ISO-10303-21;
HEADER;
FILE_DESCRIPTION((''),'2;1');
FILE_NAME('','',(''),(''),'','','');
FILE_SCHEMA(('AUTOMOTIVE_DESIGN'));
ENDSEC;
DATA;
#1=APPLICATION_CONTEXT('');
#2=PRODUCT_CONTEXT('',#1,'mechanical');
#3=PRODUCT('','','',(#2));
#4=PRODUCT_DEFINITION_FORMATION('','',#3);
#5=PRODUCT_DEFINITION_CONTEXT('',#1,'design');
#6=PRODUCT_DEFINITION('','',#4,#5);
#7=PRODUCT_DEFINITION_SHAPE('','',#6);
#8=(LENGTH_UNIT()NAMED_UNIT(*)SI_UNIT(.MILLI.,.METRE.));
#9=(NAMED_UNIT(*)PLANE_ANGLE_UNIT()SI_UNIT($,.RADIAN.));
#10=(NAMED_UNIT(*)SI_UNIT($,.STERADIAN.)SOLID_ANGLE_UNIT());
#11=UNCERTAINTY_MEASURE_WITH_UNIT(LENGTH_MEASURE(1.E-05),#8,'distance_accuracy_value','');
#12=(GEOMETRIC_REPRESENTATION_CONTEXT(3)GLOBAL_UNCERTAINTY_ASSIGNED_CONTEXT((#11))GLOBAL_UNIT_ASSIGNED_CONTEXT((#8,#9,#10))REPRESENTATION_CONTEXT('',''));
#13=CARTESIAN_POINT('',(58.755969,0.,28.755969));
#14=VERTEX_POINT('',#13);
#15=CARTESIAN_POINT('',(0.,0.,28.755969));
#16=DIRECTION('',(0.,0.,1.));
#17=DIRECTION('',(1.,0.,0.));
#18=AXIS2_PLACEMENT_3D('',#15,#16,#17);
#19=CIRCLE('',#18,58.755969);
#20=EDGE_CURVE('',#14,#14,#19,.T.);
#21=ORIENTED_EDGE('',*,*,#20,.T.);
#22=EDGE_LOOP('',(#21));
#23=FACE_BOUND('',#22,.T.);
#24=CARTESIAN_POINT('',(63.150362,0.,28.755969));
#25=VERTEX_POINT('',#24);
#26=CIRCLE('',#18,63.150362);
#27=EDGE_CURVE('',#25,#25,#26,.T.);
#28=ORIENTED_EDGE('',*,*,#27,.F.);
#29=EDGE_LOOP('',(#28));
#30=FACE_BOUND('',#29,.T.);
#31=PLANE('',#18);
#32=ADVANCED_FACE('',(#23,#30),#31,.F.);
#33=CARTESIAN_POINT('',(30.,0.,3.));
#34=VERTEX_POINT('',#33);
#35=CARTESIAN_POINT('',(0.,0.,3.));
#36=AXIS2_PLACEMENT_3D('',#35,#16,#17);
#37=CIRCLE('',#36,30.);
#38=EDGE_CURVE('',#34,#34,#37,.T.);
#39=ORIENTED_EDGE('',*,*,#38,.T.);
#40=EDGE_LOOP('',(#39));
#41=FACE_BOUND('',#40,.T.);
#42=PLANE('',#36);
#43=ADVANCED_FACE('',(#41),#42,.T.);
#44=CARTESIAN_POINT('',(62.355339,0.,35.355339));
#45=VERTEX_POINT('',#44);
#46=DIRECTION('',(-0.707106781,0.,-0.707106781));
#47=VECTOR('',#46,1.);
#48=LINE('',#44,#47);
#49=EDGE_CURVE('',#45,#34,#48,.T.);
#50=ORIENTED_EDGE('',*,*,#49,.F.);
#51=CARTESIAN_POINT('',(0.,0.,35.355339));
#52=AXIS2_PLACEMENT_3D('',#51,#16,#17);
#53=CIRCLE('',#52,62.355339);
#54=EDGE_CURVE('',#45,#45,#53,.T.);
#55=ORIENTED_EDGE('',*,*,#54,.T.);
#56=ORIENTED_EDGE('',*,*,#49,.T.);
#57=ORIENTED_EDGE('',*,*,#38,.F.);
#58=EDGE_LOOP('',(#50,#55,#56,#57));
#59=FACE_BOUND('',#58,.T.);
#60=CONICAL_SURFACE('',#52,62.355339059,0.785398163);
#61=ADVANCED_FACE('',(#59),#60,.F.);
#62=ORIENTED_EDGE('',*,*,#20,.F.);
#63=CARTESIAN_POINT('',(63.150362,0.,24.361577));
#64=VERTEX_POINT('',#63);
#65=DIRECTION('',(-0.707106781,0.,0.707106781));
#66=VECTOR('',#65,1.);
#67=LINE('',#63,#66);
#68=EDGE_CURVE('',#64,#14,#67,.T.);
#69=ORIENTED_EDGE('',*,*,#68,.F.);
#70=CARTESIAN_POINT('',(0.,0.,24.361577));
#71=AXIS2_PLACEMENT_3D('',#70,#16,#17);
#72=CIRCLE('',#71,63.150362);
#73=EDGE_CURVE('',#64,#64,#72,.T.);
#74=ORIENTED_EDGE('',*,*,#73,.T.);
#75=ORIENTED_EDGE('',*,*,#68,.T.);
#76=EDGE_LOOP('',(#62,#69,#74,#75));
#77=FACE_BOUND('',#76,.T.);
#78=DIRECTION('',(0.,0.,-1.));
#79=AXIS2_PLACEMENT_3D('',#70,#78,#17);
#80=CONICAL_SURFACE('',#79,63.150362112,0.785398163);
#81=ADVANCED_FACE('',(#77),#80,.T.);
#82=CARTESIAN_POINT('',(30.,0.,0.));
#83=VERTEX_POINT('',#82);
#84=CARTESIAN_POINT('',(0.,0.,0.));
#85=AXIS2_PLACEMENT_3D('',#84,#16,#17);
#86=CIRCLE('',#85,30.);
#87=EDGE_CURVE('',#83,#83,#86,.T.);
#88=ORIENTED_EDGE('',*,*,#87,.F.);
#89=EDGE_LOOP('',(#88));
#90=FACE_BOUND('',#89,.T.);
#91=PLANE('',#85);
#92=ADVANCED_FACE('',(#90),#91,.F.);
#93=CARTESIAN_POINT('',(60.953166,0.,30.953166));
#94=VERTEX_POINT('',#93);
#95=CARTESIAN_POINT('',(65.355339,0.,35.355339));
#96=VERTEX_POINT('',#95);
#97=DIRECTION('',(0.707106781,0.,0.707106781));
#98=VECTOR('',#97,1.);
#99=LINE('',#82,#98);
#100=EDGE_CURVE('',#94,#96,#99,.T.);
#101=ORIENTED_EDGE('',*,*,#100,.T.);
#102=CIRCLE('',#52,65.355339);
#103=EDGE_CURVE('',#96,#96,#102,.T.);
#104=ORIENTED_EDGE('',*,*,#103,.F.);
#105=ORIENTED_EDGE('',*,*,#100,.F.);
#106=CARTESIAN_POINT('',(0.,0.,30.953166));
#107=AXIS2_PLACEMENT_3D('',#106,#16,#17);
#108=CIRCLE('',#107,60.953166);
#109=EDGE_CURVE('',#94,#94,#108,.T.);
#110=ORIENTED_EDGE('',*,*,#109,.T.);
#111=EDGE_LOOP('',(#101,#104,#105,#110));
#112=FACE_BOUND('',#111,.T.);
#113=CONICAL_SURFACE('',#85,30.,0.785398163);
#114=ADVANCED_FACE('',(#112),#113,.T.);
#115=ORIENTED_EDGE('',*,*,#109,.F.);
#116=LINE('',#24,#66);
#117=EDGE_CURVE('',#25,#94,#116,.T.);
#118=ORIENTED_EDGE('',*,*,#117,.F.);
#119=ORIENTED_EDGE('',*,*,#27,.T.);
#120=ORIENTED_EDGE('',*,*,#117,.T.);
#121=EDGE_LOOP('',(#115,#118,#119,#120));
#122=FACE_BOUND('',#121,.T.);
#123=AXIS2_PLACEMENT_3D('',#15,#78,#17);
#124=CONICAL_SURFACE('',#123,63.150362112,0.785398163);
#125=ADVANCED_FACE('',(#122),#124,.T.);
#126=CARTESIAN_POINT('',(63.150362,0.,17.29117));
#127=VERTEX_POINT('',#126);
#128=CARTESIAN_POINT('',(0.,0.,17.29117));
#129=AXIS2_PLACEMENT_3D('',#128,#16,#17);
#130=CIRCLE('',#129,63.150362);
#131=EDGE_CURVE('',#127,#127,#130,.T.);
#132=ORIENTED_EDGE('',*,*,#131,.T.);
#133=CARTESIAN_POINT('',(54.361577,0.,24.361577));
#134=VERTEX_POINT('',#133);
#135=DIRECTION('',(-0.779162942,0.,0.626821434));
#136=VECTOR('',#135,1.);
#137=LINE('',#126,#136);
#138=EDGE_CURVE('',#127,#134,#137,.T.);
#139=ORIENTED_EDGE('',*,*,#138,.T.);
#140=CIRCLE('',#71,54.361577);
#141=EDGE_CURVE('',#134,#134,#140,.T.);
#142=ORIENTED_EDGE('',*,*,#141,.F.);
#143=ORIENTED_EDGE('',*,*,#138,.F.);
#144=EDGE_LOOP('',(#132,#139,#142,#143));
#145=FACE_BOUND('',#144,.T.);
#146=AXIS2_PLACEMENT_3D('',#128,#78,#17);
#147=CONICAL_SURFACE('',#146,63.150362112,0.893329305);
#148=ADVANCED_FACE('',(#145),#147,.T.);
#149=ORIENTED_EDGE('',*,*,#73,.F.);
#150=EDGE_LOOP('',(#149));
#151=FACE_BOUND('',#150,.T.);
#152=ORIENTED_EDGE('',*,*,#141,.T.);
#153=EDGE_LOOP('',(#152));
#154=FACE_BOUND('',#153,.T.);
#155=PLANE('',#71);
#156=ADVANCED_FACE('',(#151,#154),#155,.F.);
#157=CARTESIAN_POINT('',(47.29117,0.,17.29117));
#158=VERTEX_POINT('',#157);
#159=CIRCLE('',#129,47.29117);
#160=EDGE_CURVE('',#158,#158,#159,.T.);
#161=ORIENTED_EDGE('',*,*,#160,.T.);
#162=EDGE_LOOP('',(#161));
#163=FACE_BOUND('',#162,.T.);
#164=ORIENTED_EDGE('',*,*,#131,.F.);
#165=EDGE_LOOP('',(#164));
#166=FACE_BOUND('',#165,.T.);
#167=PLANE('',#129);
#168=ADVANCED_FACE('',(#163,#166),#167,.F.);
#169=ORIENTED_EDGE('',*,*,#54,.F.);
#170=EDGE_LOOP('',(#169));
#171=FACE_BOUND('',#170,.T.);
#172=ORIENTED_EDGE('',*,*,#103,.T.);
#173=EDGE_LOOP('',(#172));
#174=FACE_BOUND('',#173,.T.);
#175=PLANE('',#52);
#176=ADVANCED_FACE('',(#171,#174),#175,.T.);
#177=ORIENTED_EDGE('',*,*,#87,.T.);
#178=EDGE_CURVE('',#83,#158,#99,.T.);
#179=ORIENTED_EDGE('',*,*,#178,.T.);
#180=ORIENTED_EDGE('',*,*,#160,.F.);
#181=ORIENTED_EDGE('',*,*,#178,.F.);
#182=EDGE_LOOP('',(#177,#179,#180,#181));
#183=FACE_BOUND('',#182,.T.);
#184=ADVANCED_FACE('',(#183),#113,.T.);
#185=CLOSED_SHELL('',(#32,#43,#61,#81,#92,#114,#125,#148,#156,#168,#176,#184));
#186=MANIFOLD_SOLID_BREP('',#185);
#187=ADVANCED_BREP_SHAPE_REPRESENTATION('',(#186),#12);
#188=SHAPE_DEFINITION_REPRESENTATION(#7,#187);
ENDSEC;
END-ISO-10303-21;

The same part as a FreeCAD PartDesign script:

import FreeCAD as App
import Part
import Sketcher
Q = App.Units.Quantity


def add_polygon(sketch, points):
    """Adds a closed chain of lines whose ends are joined by coincident constraints."""
    first, n = sketch.GeometryCount, len(points)
    for a, b in zip(points, points[1:] + points[:1]):
        sketch.addGeometry(Part.LineSegment(App.Vector(*a, 0), App.Vector(*b, 0)), False)
    for i in range(n):
        sketch.addConstraint(Sketcher.Constraint("Coincident", first + i, 2, first + (i + 1) % n, 1))

doc = App.newDocument("Part")
params = doc.addObject("Spreadsheet::Sheet", "Params")
for row, (alias, value) in enumerate([
    ("sketch1_width", "30 mm"),
    ("sketch1_width2", "3 mm"),
    ("revolution_angle", "360 deg"),
], start=1):
    params.set(f"A{row}", alias)
    params.set(f"B{row}", "=" + value)
    params.setAlias(f"B{row}", alias)

body = doc.addObject("PartDesign::Body", "Body")

sketch1 = body.newObject("Sketcher::SketchObject", "Sketch")
sketch1.AttachmentSupport = (doc.getObject("XZ_Plane"), [""])
sketch1.MapMode = "FlatFace"
add_polygon(sketch1, [(0, 3), (0, 0), (30, 0), (47.3, 17.3), (63.2, 17.3), (54.4, 24.4), (63.2, 24.4), (58.8, 28.8), (63.2, 28.8), (61, 31), (65.4, 35.4), (62.4, 35.4), (30, 3)])
sketch1.addConstraint([
    Sketcher.Constraint("Vertical", 0),
    Sketcher.Constraint("Horizontal", 1),
    Sketcher.Constraint("Horizontal", 3),
    Sketcher.Constraint("Horizontal", 5),
    Sketcher.Constraint("Horizontal", 7),
    Sketcher.Constraint("Horizontal", 10),
    Sketcher.Constraint("Horizontal", 12),
    Sketcher.Constraint("Coincident", 0, 2, -1, 1),
    Sketcher.Constraint("Perpendicular", 2, 6),
    Sketcher.Constraint("Parallel", 6, 8),
    Sketcher.Constraint("Perpendicular", 8, 9),
    Sketcher.Constraint("Parallel", 9, 11),
    Sketcher.Constraint("Vertical", 3, 2, 5, 2),
    Sketcher.Constraint("Vertical", 5, 2, 7, 2),
    Sketcher.Constraint("Vertical", 1, 2, 11, 2),
    Sketcher.Constraint("Equal", 10, 0),
    Sketcher.Constraint("DistanceX", 1, 1, 1, 2, 30.0),
    Sketcher.Constraint("DistanceX", 10, 2, 10, 1, 3.0),
    Sketcher.Constraint("Angle", 2, Q("45 deg")),
    Sketcher.Constraint("DistanceY", 3, 2, 6, 2, 11.4648),
    Sketcher.Constraint("DistanceX", 2, 2, 6, 2, 11.4648),
    Sketcher.Constraint("Distance", 4, 11.279779),
    Sketcher.Constraint("Distance", 6, 6.21461),
    Sketcher.Constraint("Distance", 11, 45.757359),
    Sketcher.Constraint("DistanceX", -1, 1, 2, 2, 47.29117),
])
sketch1.setExpression("Constraints[29]", "Params.sketch1_width")
sketch1.setExpression("Constraints[30]", "Params.sketch1_width2")
revolution = body.newObject("PartDesign::Revolution", "Revolution")
revolution.Profile = sketch1
revolution.ReferenceAxis = (sketch1, ["V_Axis"])
revolution.setExpression("Angle", "Params.revolution_angle")

doc.recompute()
